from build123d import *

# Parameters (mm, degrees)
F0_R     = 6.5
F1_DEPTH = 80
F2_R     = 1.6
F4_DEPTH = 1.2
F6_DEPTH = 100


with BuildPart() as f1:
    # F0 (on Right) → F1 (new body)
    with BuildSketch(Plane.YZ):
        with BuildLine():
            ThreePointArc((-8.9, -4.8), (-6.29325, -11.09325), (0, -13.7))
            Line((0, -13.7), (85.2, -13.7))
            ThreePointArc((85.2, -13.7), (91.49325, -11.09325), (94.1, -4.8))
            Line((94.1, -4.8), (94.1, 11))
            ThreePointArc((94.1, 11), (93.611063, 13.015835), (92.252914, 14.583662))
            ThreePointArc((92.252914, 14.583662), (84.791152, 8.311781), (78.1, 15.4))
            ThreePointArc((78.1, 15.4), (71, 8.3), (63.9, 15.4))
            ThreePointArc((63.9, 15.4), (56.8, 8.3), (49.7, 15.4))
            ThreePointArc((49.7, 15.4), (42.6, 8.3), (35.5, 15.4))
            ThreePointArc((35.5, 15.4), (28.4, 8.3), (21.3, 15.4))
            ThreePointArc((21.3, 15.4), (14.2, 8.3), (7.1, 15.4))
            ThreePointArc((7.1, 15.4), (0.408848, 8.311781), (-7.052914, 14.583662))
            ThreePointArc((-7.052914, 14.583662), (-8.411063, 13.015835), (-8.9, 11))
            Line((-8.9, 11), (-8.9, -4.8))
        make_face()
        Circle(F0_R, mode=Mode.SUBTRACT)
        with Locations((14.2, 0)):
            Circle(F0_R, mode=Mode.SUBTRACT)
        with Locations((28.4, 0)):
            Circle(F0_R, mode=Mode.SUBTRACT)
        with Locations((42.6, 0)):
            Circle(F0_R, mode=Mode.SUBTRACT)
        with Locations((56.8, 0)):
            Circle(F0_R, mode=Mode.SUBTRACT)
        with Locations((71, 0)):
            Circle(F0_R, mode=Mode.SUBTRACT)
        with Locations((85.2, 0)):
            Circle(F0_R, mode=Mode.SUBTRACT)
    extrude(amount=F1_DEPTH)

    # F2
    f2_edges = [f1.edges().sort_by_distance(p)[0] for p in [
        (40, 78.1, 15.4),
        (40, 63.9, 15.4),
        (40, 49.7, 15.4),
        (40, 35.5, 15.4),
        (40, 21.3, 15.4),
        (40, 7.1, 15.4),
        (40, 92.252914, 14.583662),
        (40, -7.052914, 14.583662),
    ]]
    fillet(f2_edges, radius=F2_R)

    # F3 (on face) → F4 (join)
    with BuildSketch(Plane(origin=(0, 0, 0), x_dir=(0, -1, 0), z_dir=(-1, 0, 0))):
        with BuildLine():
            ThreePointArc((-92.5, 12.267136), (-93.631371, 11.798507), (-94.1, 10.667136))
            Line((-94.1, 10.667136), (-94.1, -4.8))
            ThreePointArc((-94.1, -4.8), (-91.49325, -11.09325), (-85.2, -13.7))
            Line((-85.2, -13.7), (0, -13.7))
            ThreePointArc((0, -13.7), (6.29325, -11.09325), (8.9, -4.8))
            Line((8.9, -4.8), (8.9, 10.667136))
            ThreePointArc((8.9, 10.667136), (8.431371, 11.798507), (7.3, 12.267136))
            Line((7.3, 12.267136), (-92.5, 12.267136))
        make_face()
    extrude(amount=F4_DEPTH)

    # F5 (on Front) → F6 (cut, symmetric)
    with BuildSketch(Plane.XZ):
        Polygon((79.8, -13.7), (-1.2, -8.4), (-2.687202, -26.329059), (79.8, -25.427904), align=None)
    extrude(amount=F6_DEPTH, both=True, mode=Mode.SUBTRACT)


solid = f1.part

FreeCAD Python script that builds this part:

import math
import FreeCAD as App
import Part
import Sketcher
from FreeCAD import Vector


def edges_at(feature, points):
    """Names of the edges that pass closest to the given points."""
    edges = feature.Shape.Edges
    near = lambda p: min(range(len(edges)), key=lambda i: edges[i].distToShape(Part.Vertex(*p))[0])
    return sorted({f"Edge{near(p) + 1}" for p in points})


def add_polygon(sketch, points):
    """Adds a closed chain of lines whose ends are joined by coincident constraints."""
    first, n = sketch.GeometryCount, len(points)
    for a, b in zip(points, points[1:] + points[:1]):
        sketch.addGeometry(Part.LineSegment(App.Vector(*a, 0), App.Vector(*b, 0)), False)
    for i in range(n):
        sketch.addConstraint(Sketcher.Constraint("Coincident", first + i, 2, first + (i + 1) % n, 1))

doc = App.newDocument("Part")
body = doc.addObject("PartDesign::Body", "Body")

# Sketch on YZ plane
sketch1 = body.newObject("Sketcher::SketchObject", "Sketch")
sketch1.AttachmentSupport = (doc.getObject("YZ_Plane"), [""])
sketch1.MapMode = "FlatFace"
sketch1.addGeometry([
    Part.ArcOfCircle(Part.Circle(Vector(0, -4.8, 0), Vector(0, 0, 1), 8.9), math.radians(-180), math.radians(-90)),  # 0
    Part.LineSegment(Vector(0, -13.7, 0), Vector(85.2, -13.7, 0)),  # 1
    Part.ArcOfCircle(Part.Circle(Vector(85.2, -4.8, 0), Vector(0, 0, 1), 8.9), math.radians(-90), math.radians(0)),  # 2
    Part.LineSegment(Vector(94.1, -4.8, 0), Vector(94.1, 11, 0)),  # 3
    Part.ArcOfCircle(Part.Circle(Vector(89.7, 11, 0), Vector(0, 0, 1), 4.4), math.radians(0), math.radians(55)),  # 4
    Part.ArcOfCircle(Part.Circle(Vector(85.2, 15.4, 0), Vector(0, 0, 1), 7.1), math.radians(180), math.radians(353)),  # 5
    Part.ArcOfCircle(Part.Circle(Vector(71, 15.4, 0), Vector(0, 0, 1), 7.1), math.radians(180), math.radians(360)),  # 6
    Part.ArcOfCircle(Part.Circle(Vector(56.8, 15.4, 0), Vector(0, 0, 1), 7.1), math.radians(180), math.radians(360)),  # 7
    Part.ArcOfCircle(Part.Circle(Vector(42.6, 15.4, 0), Vector(0, 0, 1), 7.1), math.radians(180), math.radians(360)),  # 8
    Part.ArcOfCircle(Part.Circle(Vector(28.4, 15.4, 0), Vector(0, 0, 1), 7.1), math.radians(180), math.radians(360)),  # 9
    Part.ArcOfCircle(Part.Circle(Vector(14.2, 15.4, 0), Vector(0, 0, 1), 7.1), math.radians(180), math.radians(360)),  # 10
    Part.ArcOfCircle(Part.Circle(Vector(0, 15.4, 0), Vector(0, 0, 1), 7.1), math.radians(-173), math.radians(0)),  # 11
    Part.ArcOfCircle(Part.Circle(Vector(-4.5, 11, 0), Vector(0, 0, 1), 4.4), math.radians(125), math.radians(180)),  # 12
    Part.LineSegment(Vector(-8.9, 11, 0), Vector(-8.9, -4.8, 0)),  # 13
    Part.Circle(Vector(0, 0, 0), Vector(0, 0, 1), 6.5),  # 14
    Part.Circle(Vector(14.2, 0, 0), Vector(0, 0, 1), 6.5),  # 15
    Part.Circle(Vector(28.4, 0, 0), Vector(0, 0, 1), 6.5),  # 16
    Part.Circle(Vector(42.6, 0, 0), Vector(0, 0, 1), 6.5),  # 17
    Part.Circle(Vector(56.8, 0, 0), Vector(0, 0, 1), 6.5),  # 18
    Part.Circle(Vector(71, 0, 0), Vector(0, 0, 1), 6.5),  # 19
    Part.Circle(Vector(85.2, 0, 0), Vector(0, 0, 1), 6.5),  # 20
], False)
sketch1.addConstraint([
    Sketcher.Constraint("Tangent", 0, 2, 1, 1),
    Sketcher.Constraint("Tangent", 1, 2, 2, 1),
    Sketcher.Constraint("Tangent", 2, 2, 3, 1),
    Sketcher.Constraint("Tangent", 3, 2, 4, 1),
    Sketcher.Constraint("Coincident", 4, 2, 5, 2),
    Sketcher.Constraint("Tangent", 5, 1, 6, 2),
    Sketcher.Constraint("Tangent", 6, 1, 7, 2),
    Sketcher.Constraint("Tangent", 7, 1, 8, 2),
    Sketcher.Constraint("Tangent", 8, 1, 9, 2),
    Sketcher.Constraint("Tangent", 9, 1, 10, 2),
    Sketcher.Constraint("Tangent", 10, 1, 11, 2),
    Sketcher.Constraint("Coincident", 11, 1, 12, 1),
    Sketcher.Constraint("Tangent", 12, 2, 13, 1),
    Sketcher.Constraint("Tangent", 13, 2, 0, 1),
    Sketcher.Constraint("Horizontal", 1),
    Sketcher.Constraint("Vertical", 3),
    Sketcher.Constraint("Vertical", 13),
    Sketcher.Constraint("Coincident", 14, 3, -1, 1),
    Sketcher.Constraint("Equal", 0, 2),
    Sketcher.Constraint("Equal", 5, 6),
    Sketcher.Constraint("Equal", 6, 7),
    Sketcher.Constraint("Equal", 7, 8),
    Sketcher.Constraint("Equal", 8, 9),
    Sketcher.Constraint("Equal", 9, 10),
    Sketcher.Constraint("Equal", 10, 11),
    Sketcher.Constraint("Equal", 4, 12),
    Sketcher.Constraint("Equal", 14, 15),
    Sketcher.Constraint("Equal", 15, 16),
    Sketcher.Constraint("Equal", 16, 17),
    Sketcher.Constraint("Equal", 17, 18),
    Sketcher.Constraint("Equal", 18, 19),
    Sketcher.Constraint("Equal", 19, 20),
    Sketcher.Constraint("PointOnObject", 0, 3, -2),
    Sketcher.Constraint("PointOnObject", 11, 3, -2),
    Sketcher.Constraint("PointOnObject", 15, 3, -1),
    Sketcher.Constraint("PointOnObject", 16, 3, -1),
    Sketcher.Constraint("PointOnObject", 17, 3, -1),
    Sketcher.Constraint("PointOnObject", 18, 3, -1),
    Sketcher.Constraint("PointOnObject", 19, 3, -1),
    Sketcher.Constraint("PointOnObject", 20, 3, -1),
    Sketcher.Constraint("Horizontal", 5, 3, 6, 3),
    Sketcher.Constraint("Horizontal", 6, 3, 7, 3),
    Sketcher.Constraint("Horizontal", 7, 3, 8, 3),
    Sketcher.Constraint("Horizontal", 8, 3, 9, 3),
    Sketcher.Constraint("Horizontal", 9, 3, 10, 3),
    Sketcher.Constraint("Horizontal", 10, 3, 11, 3),
    Sketcher.Constraint("Horizontal", 4, 3, 12, 3),
    Sketcher.Constraint("Horizontal", 4, 2, 11, 1),
    Sketcher.Constraint("Vertical", 10, 3, 15, 3),
    Sketcher.Constraint("Vertical", 9, 3, 16, 3),
    Sketcher.Constraint("Vertical", 8, 3, 17, 3),
    Sketcher.Constraint("Vertical", 7, 3, 18, 3),
    Sketcher.Constraint("Vertical", 6, 3, 19, 3),
    Sketcher.Constraint("Vertical", 5, 3, 20, 3),
    Sketcher.Constraint("Diameter", 14, 13.0),
    Sketcher.Constraint("Radius", 0, 8.900001),
    Sketcher.Constraint("Radius", 5, 7.1),
    Sketcher.Constraint("DistanceY", 3, 1, 3, 2, 15.8),
    Sketcher.Constraint("DistanceY", -1, 1, 4, 3, 11.000002),
    Sketcher.Constraint("DistanceY", -1, 1, 5, 3, 15.4),
    Sketcher.Constraint("DistanceX", 0, 3, 4, 3, 89.700001),
])
pad1 = body.newObject("PartDesign::Pad", "Pad")
pad1.Profile = sketch1
pad1.Length = 80
doc.recompute()

fillet = body.newObject("PartDesign::Fillet", "Fillet")
fillet.Base = (pad1, edges_at(pad1, [
    (40, 78.1, 15.4),
    (40, 63.9, 15.4),
    (40, 49.7, 15.4),
    (40, 35.5, 15.4),
    (40, 21.3, 15.4),
    (40, 7.1, 15.4),
    (40, 92.253, 14.584),
    (40, -7.053, 14.584),
]))
fillet.Radius = 1.6

# Sketch on YZ plane
sketch2 = body.newObject("Sketcher::SketchObject", "Sketch001")
sketch2.AttachmentSupport = (doc.getObject("YZ_Plane"), [""])
sketch2.MapMode = "FlatFace"
sketch2.addGeometry([
    Part.ArcOfCircle(Part.Circle(Vector(92.5, 10.7, 0), Vector(0, 0, 1), 1.6), math.radians(0), math.radians(90)),  # 0
    Part.LineSegment(Vector(94.1, 10.7, 0), Vector(94.1, -4.8, 0)),  # 1
    Part.ArcOfCircle(Part.Circle(Vector(85.2, -4.8, 0), Vector(0, 0, 1), 8.9), math.radians(-90), math.radians(0)),  # 2
    Part.LineSegment(Vector(85.2, -13.7, 0), Vector(0, -13.7, 0)),  # 3
    Part.ArcOfCircle(Part.Circle(Vector(0, -4.8, 0), Vector(0, 0, 1), 8.9), math.radians(-180), math.radians(-90)),  # 4
    Part.LineSegment(Vector(-8.9, -4.8, 0), Vector(-8.9, 10.7, 0)),  # 5
    Part.ArcOfCircle(Part.Circle(Vector(-7.3, 10.7, 0), Vector(0, 0, 1), 1.6), math.radians(90), math.radians(180)),  # 6
    Part.LineSegment(Vector(-7.3, 12.3, 0), Vector(92.5, 12.3, 0)),  # 7
], False)
sketch2.addConstraint([
    Sketcher.Constraint("Tangent", 0, 1, 1, 1),
    Sketcher.Constraint("Tangent", 1, 2, 2, 2),
    Sketcher.Constraint("Tangent", 2, 1, 3, 1),
    Sketcher.Constraint("Tangent", 3, 2, 4, 2),
    Sketcher.Constraint("Tangent", 4, 1, 5, 1),
    Sketcher.Constraint("Tangent", 5, 2, 6, 2),
    Sketcher.Constraint("Tangent", 6, 1, 7, 1),
    Sketcher.Constraint("Tangent", 7, 2, 0, 2),
    Sketcher.Constraint("Vertical", 1),
    Sketcher.Constraint("Horizontal", 3),
    Sketcher.Constraint("Vertical", 5),
    Sketcher.Constraint("Horizontal", 7),
    Sketcher.Constraint("Equal", 2, 4),
    Sketcher.Constraint("Equal", 0, 6),
    Sketcher.Constraint("PointOnObject", 4, 3, -2),
    Sketcher.Constraint("Radius", 0, 1.599999),
    Sketcher.Constraint("Radius", 2, 8.900001),
    Sketcher.Constraint("DistanceX", 3, 2, 3, 1, 85.2),
    Sketcher.Constraint("DistanceY", 2, 3, -1, 1, 4.799999),
    Sketcher.Constraint("DistanceY", 1, 2, 1, 1, 15.467136),
])
pad2 = body.newObject("PartDesign::Pad", "Pad001")
pad2.Profile = sketch2
pad2.Length = 1.2
pad2.Reversed = True

# Sketch on XZ plane
sketch3 = body.newObject("Sketcher::SketchObject", "Sketch002")
sketch3.AttachmentSupport = (doc.getObject("XZ_Plane"), [""])
sketch3.MapMode = "FlatFace"
add_polygon(sketch3, [(80, -14), (-1, -8), (-3, -26), (80, -25)])  # lines 0-3
sketch3.addConstraint([
    Sketcher.Constraint("Vertical", 3),
    Sketcher.Constraint("DistanceX", 0, 2, 2, 2, 81.0),
    Sketcher.Constraint("DistanceX", 0, 2, -1, 1, 1.2),
    Sketcher.Constraint("DistanceY", 0, 2, -1, 1, 8.4),
    Sketcher.Constraint("DistanceY", 3, 2, -1, 1, 13.7),
    Sketcher.Constraint("DistanceX", 1, 2, 2, 2, 82.487202),
    Sketcher.Constraint("DistanceY", 3, 1, 3, 2, 11.727904),
    Sketcher.Constraint("DistanceY", 1, 2, -1, 1, 26.329059),
])
pocket1 = body.newObject("PartDesign::Pocket", "Pocket")
pocket1.Profile = sketch3
pocket1.Length = 200
pocket1.Midplane = True

doc.recompute()
